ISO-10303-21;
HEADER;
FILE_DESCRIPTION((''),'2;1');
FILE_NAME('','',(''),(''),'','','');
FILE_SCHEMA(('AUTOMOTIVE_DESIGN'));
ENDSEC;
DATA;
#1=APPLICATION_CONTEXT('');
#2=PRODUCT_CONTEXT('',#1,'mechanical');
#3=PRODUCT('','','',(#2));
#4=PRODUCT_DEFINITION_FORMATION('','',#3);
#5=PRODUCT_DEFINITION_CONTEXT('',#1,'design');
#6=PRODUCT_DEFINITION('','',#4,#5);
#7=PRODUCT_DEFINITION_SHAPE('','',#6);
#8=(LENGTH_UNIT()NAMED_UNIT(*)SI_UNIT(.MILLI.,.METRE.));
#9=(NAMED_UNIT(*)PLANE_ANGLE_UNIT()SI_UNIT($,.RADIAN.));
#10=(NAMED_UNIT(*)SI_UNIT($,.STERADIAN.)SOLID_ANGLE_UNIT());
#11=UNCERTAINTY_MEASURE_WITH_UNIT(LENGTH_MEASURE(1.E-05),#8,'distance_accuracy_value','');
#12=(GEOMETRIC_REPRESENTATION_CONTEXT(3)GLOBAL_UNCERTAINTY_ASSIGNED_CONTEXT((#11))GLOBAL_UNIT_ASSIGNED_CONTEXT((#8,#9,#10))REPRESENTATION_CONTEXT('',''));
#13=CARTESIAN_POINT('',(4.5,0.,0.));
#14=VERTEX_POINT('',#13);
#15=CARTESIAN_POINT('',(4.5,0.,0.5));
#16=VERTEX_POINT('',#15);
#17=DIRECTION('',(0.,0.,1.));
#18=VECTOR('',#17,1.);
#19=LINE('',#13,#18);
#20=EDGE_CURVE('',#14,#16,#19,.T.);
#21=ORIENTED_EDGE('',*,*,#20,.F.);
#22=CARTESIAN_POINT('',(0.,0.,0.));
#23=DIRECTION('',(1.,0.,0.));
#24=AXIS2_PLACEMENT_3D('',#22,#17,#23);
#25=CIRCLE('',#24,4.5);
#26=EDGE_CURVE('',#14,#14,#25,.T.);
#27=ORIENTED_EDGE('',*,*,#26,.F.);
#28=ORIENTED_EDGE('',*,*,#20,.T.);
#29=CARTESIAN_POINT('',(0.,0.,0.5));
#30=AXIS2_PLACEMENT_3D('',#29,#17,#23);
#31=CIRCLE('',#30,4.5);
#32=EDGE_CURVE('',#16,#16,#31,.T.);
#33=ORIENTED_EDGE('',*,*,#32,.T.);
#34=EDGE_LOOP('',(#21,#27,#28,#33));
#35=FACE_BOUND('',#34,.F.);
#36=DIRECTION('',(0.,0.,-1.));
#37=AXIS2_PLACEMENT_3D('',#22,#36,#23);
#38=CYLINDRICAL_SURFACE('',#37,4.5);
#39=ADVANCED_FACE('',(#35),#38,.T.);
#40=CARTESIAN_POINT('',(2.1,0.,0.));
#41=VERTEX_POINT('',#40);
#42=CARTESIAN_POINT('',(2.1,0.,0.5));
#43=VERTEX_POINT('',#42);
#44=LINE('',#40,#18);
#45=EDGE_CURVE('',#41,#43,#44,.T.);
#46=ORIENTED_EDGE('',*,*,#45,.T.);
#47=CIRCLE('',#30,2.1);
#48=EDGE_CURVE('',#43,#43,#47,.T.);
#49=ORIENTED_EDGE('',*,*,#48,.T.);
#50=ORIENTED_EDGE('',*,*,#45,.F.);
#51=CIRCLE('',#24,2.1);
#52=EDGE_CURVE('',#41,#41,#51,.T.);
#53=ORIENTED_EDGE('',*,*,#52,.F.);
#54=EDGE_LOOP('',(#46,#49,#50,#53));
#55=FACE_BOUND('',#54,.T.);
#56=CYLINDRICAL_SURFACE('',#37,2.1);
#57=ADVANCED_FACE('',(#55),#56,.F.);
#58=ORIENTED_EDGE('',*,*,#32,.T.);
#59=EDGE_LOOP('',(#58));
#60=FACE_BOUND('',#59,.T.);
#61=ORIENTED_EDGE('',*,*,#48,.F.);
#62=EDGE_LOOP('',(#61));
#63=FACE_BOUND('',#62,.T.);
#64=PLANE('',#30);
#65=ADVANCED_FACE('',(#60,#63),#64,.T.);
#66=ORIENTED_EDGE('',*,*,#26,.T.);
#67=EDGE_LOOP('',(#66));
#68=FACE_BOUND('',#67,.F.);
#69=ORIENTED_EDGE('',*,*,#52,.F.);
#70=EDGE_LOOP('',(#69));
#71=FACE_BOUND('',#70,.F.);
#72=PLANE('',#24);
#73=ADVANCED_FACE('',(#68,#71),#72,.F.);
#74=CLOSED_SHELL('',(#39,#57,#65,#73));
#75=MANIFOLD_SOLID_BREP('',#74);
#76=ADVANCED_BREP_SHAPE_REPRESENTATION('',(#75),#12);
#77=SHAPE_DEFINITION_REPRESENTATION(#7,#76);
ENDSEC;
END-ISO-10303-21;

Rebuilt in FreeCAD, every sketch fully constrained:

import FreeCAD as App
import Part
import Sketcher

doc = App.newDocument("Part")
body = doc.addObject("PartDesign::Body", "Body")

# Sketch on XY plane
sketch1 = doc.addObject("Sketcher::SketchObject", "Sketch")
body.addObject(sketch1)
sketch1.AttachmentSupport = (doc.XY_Plane, [""])
sketch1.MapMode = "FlatFace"
sketch1.addGeometry(Part.Circle(App.Vector(0, 0, 0), App.Vector(0, 0, 1), 4.5), False)
sketch1.addGeometry(Part.Circle(App.Vector(0, 0, 0), App.Vector(0, 0, 1), 2.1), False)
sketch1.addConstraint(Sketcher.Constraint("Coincident", 0, 3, -1, 1))
sketch1.addConstraint(Sketcher.Constraint("Coincident", 1, 3, -1, 1))
sketch1.addConstraint(Sketcher.Constraint("Diameter", 0, 9.0))
sketch1.addConstraint(Sketcher.Constraint("Diameter", 1, 4.2))
pad1 = doc.addObject("PartDesign::Pad", "Pad")
body.addObject(pad1)
pad1.Profile = sketch1
pad1.Length = 0.5

doc.recompute()
